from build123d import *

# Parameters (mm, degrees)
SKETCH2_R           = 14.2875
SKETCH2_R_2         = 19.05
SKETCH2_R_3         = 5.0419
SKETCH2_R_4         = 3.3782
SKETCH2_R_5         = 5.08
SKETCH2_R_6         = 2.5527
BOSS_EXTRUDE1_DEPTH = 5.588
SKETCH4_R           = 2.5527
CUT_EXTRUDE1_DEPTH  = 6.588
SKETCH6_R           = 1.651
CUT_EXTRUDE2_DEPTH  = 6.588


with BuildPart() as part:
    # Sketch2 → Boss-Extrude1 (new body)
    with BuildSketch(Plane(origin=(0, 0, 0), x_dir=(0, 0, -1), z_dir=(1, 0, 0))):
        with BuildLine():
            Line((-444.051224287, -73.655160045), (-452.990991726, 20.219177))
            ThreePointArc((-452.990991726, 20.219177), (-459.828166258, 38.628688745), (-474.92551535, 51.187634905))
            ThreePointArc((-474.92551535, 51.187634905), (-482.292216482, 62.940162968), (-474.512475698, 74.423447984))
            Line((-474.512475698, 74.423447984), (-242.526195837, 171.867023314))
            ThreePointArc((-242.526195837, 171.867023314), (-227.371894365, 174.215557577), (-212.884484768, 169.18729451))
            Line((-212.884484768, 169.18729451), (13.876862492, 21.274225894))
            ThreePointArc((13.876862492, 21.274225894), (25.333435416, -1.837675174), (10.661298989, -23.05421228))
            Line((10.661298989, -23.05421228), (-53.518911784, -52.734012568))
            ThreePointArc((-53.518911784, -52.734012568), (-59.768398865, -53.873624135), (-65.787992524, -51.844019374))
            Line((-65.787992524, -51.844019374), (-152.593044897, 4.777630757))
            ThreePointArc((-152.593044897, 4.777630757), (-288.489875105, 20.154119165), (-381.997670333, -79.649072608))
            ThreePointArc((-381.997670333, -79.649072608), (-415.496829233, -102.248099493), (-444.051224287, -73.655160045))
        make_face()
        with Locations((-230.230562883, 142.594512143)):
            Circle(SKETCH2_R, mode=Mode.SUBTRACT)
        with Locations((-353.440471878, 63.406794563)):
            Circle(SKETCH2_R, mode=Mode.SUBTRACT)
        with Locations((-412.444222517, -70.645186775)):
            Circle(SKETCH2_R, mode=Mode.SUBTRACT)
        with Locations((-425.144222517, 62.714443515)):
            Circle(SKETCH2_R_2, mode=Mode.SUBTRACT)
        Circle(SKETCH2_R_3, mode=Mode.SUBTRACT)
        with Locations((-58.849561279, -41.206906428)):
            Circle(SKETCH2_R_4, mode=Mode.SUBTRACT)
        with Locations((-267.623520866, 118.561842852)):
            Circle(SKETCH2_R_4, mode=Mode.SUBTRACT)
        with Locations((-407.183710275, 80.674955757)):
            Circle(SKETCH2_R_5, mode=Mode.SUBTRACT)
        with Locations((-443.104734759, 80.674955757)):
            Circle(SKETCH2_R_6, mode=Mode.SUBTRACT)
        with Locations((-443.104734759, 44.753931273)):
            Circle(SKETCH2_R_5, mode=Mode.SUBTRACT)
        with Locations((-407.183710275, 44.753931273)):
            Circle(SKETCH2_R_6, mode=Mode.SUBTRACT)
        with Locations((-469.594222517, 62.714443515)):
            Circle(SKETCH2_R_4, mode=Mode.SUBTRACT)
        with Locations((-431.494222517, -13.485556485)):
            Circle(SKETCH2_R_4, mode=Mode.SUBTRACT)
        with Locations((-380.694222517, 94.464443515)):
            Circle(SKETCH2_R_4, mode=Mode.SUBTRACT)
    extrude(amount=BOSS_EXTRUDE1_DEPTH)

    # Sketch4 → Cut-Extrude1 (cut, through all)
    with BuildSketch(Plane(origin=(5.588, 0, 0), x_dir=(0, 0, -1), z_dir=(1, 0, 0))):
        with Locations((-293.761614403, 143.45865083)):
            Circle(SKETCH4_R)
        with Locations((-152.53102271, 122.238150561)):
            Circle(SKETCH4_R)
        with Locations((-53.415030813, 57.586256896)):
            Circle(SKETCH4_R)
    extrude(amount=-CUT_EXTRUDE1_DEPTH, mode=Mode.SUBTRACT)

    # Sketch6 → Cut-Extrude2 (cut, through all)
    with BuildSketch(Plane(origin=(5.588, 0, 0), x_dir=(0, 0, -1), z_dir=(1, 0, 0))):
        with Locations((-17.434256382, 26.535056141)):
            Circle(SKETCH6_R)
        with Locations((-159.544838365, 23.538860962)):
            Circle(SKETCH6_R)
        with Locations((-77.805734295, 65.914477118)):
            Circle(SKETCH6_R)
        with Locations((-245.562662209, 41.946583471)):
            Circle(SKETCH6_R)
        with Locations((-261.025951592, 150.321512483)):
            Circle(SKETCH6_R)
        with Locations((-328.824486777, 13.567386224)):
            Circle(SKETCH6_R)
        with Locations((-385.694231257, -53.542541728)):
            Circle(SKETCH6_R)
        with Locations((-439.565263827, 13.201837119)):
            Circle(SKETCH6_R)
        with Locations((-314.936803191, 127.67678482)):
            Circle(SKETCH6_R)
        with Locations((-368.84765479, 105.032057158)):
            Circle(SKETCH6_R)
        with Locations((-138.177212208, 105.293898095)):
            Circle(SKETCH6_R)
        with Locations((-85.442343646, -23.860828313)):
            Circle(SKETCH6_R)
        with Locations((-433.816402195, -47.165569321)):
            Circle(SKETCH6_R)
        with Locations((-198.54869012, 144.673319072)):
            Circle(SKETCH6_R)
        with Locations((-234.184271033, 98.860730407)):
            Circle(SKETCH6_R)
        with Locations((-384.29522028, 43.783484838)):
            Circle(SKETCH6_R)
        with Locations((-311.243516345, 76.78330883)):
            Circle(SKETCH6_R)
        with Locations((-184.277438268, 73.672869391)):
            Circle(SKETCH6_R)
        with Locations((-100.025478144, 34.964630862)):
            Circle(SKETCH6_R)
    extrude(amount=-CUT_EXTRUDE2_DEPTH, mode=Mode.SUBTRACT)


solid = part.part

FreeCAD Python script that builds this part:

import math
import FreeCAD as App
import Part
import Sketcher
from FreeCAD import Vector
Q = App.Units.Quantity

doc = App.newDocument("Part")
body = doc.addObject("PartDesign::Body", "Body")

# Sketch on YZ plane
sketch1 = body.newObject("Sketcher::SketchObject", "Sketch")
sketch1.AttachmentSupport = (doc.getObject("YZ_Plane"), [""])
sketch1.MapMode = "FlatFace"
sketch1.addGeometry(Part.LineSegment(Vector(20.219177, 452.990992, 0), Vector(-73.65516, 444.051224, 0)), False)
sketch1.addGeometry(Part.ArcOfCircle(Part.Circle(Vector(-70.645187, 412.444223, 0), Vector(0, 0, 1), 31.75), math.radians(95.439942), math.radians(253.525597)), False)
sketch1.addGeometry(Part.ArcOfCircle(Part.Circle(Vector(-122.867725, 235.85422, 0), Vector(0, 0, 1), 152.4), math.radians(-33.115815), math.radians(73.525597)), False)
sketch1.addGeometry(Part.LineSegment(Vector(4.777631, 152.593045, 0), Vector(-51.844019, 65.787993, 0)), False)
sketch1.addGeometry(Part.ArcOfCircle(Part.Circle(Vector(-41.206906, 58.849561, 0), Vector(0, 0, 1), 12.7), math.radians(146.884185), math.radians(204.817933)), False)
sketch1.addGeometry(Part.LineSegment(Vector(-52.734013, 53.518912, 0), Vector(-23.054212, -10.661299, 0)), False)
sketch1.addGeometry(Part.ArcOfCircle(Part.Circle(Vector(0, 0, 0), Vector(0, 0, 1), 25.4), math.radians(-155.182067), math.radians(-33.115815)), False)
sketch1.addGeometry(Part.LineSegment(Vector(21.274226, -13.876862, 0), Vector(169.187295, 212.884485, 0)), False)
sketch1.addGeometry(Part.ArcOfCircle(Part.Circle(Vector(142.594512, 230.230563, 0), Vector(0, 0, 1), 31.75), math.radians(-33.115815), math.radians(22.784366)), False)
sketch1.addGeometry(Part.LineSegment(Vector(171.867023, 242.526196, 0), Vector(74.423448, 474.512476, 0)), False)
sketch1.addGeometry(Part.ArcOfCircle(Part.Circle(Vector(62.714444, 469.594223, 0), Vector(0, 0, 1), 12.7), math.radians(22.784366), math.radians(155.17887)), False)
sketch1.addGeometry(Part.ArcOfCircle(Part.Circle(Vector(16.607209, 490.919394, 0), Vector(0, 0, 1), 38.1), math.radians(-84.560058), math.radians(-24.82113)), False)
sketch1.addGeometry(Part.Circle(Vector(-41.206906, 58.849561, 0), Vector(0, 0, 1), 3.3782), False)
sketch1.addGeometry(Part.Circle(Vector(0, 0, 0), Vector(0, 0, 1), 5.0419), False)
sketch1.addGeometry(Part.Circle(Vector(-70.645187, 412.444223, 0), Vector(0, 0, 1), 14.2875), False)
sketch1.addGeometry(Part.Circle(Vector(-13.485556, 431.494223, 0), Vector(0, 0, 1), 3.3782), False)
sketch1.addGeometry(Part.Circle(Vector(142.594512, 230.230563, 0), Vector(0, 0, 1), 14.2875), False)
sketch1.addGeometry(Part.Circle(Vector(63.406795, 353.440472, 0), Vector(0, 0, 1), 14.2875), False)
sketch1.addGeometry(Part.Circle(Vector(44.753931, 407.18371, 0), Vector(0, 0, 1), 2.5527), False)
sketch1.addGeometry(Part.Circle(Vector(44.753931, 443.104735, 0), Vector(0, 0, 1), 5.08), False)
sketch1.addGeometry(Part.Circle(Vector(62.714444, 425.144223, 0), Vector(0, 0, 1), 19.05), False)
sketch1.addGeometry(Part.Circle(Vector(62.714444, 469.594223, 0), Vector(0, 0, 1), 3.3782), False)
sketch1.addGeometry(Part.Circle(Vector(80.674956, 407.18371, 0), Vector(0, 0, 1), 5.08), False)
sketch1.addGeometry(Part.Circle(Vector(94.464444, 380.694223, 0), Vector(0, 0, 1), 3.3782), False)
sketch1.addGeometry(Part.Circle(Vector(80.674956, 443.104735, 0), Vector(0, 0, 1), 2.5527), False)
sketch1.addGeometry(Part.Circle(Vector(118.561843, 267.623521, 0), Vector(0, 0, 1), 3.3782), False)
sketch1.addConstraint(Sketcher.Constraint("Tangent", 0, 2, 1, 1))
sketch1.addConstraint(Sketcher.Constraint("Tangent", 1, 2, 2, 2))
sketch1.addConstraint(Sketcher.Constraint("Tangent", 2, 1, 3, 1))
sketch1.addConstraint(Sketcher.Constraint("Tangent", 3, 2, 4, 1))
sketch1.addConstraint(Sketcher.Constraint("Tangent", 4, 2, 5, 1))
sketch1.addConstraint(Sketcher.Constraint("Tangent", 5, 2, 6, 1))
sketch1.addConstraint(Sketcher.Constraint("Tangent", 6, 2, 7, 1))
sketch1.addConstraint(Sketcher.Constraint("Tangent", 7, 2, 8, 1))
sketch1.addConstraint(Sketcher.Constraint("Tangent", 8, 2, 9, 1))
sketch1.addConstraint(Sketcher.Constraint("Tangent", 9, 2, 10, 1))
sketch1.addConstraint(Sketcher.Constraint("Tangent", 10, 2, 11, 2))
sketch1.addConstraint(Sketcher.Constraint("Tangent", 11, 1, 0, 1))
sketch1.addConstraint(Sketcher.Constraint("Coincident", 6, 3, -1, 1))
sketch1.addConstraint(Sketcher.Constraint("Coincident", 13, 3, -1, 1))
sketch1.addConstraint(Sketcher.Constraint("Coincident", 12, 3, 4, 3))
sketch1.addConstraint(Sketcher.Constraint("Coincident", 14, 3, 1, 3))
sketch1.addConstraint(Sketcher.Constraint("Coincident", 16, 3, 8, 3))
sketch1.addConstraint(Sketcher.Constraint("Coincident", 21, 3, 10, 3))
sketch1.addConstraint(Sketcher.Constraint("Equal", 1, 8))
sketch1.addConstraint(Sketcher.Constraint("Equal", 4, 10))
sketch1.addConstraint(Sketcher.Constraint("Equal", 12, 15))
sketch1.addConstraint(Sketcher.Constraint("Equal", 14, 16))
sketch1.addConstraint(Sketcher.Constraint("Equal", 16, 17))
sketch1.addConstraint(Sketcher.Constraint("Equal", 15, 21))
sketch1.addConstraint(Sketcher.Constraint("Equal", 19, 22))
sketch1.addConstraint(Sketcher.Constraint("Equal", 21, 23))
sketch1.addConstraint(Sketcher.Constraint("Equal", 18, 24))
sketch1.addConstraint(Sketcher.Constraint("Equal", 23, 25))
sketch1.addConstraint(Sketcher.Constraint("Parallel", 3, 7))
sketch1.addConstraint(Sketcher.Constraint("Horizontal", 18, 3, 22, 3))
sketch1.addConstraint(Sketcher.Constraint("Horizontal", 19, 3, 24, 3))
sketch1.addConstraint(Sketcher.Constraint("Vertical", 18, 3, 19, 3))
sketch1.addConstraint(Sketcher.Constraint("Vertical", 10, 3, 20, 3))
sketch1.addConstraint(Sketcher.Constraint("Vertical", 22, 3, 24, 3))
sketch1.addConstraint(Sketcher.Constraint("Radius", 2, Q("6 in")))
sketch1.addConstraint(Sketcher.Constraint("Radius", 6, Q("1 in")))
sketch1.addConstraint(Sketcher.Constraint("Diameter", 19, Q("0.4 in")))
sketch1.addConstraint(Sketcher.Constraint("Diameter", 20, Q("1.5 in")))
sketch1.addConstraint(Sketcher.Constraint("Radius", 4, Q("0.5 in")))
sketch1.addConstraint(Sketcher.Constraint("Radius", 11, Q("1.5 in")))
sketch1.addConstraint(Sketcher.Constraint("Radius", 1, Q("1.25 in")))
sketch1.addConstraint(Sketcher.Constraint("Diameter", 12, Q("0.266 in")))
sketch1.addConstraint(Sketcher.Constraint("Diameter", 13, Q("0.397 in")))
sketch1.addConstraint(Sketcher.Constraint("Diameter", 14, Q("1.125 in")))
sketch1.addConstraint(Sketcher.Constraint("Diameter", 18, Q("0.201 in")))
sketch1.addConstraint(Sketcher.Constraint("DistanceX", 15, 3, 10, 3, Q("3 in")))
sketch1.addConstraint(Sketcher.Constraint("DistanceY", 15, 3, 10, 3, Q("1.5 in")))
sketch1.addConstraint(Sketcher.Constraint("DistanceY", 1, 3, 10, 3, Q("2.25 in")))
sketch1.addConstraint(Sketcher.Constraint("DistanceY", 20, 3, 10, 3, Q("1.75 in")))
sketch1.addConstraint(Sketcher.Constraint("DistanceX", 20, 3, 23, 3, Q("1.25 in")))
sketch1.addConstraint(Sketcher.Constraint("DistanceY", 23, 3, 20, 3, Q("1.75 in")))
sketch1.addConstraint(Sketcher.Constraint("DistanceY", -1, 1, 2, 1, Q("6.0076002 in")))
sketch1.addConstraint(Sketcher.Constraint("DistanceY", 5, 2, -1, 1, 10.661299))
sketch1.addConstraint(Sketcher.Constraint("DistanceY", 4, 3, 8, 3, 171.381002))
sketch1.addConstraint(Sketcher.Constraint("DistanceX", 1, 3, 8, 3, 213.239699))
sketch1.addConstraint(Sketcher.Constraint("DistanceX", 23, 3, 25, 3, 24.097399))
sketch1.addConstraint(Sketcher.Constraint("DistanceY", 25, 3, 23, 3, 113.070702))
sketch1.addConstraint(Sketcher.Constraint("DistanceY", 1, 3, 0, 2, 31.607002))
sketch1.addConstraint(Sketcher.Constraint("DistanceX", 4, 2, 5, 2, 29.6798))
sketch1.addConstraint(Sketcher.Constraint("DistanceX", 17, 3, 7, 2, 105.7805))
sketch1.addConstraint(Sketcher.Constraint("Distance", 0, 94.299049))
sketch1.addConstraint(Sketcher.Constraint("Distance", 7, 270.737852))
sketch1.addConstraint(Sketcher.Constraint("DistanceY", -1, 1, 17, 3, 353.440472))
sketch1.addConstraint(Sketcher.Constraint("DistanceX", -1, 1, 18, 3, 44.753931))
sketch1.addConstraint(Sketcher.Constraint("DistanceY", -1, 1, 18, 3, 407.18371))
sketch1.addConstraint(Sketcher.Constraint("DistanceY", 19, 3, 11, 3, 47.814659))
sketch1.addConstraint(Sketcher.Constraint("DistanceX", 17, 3, 22, 3, 17.268161))
pad1 = body.newObject("PartDesign::Pad", "Pad")
pad1.Profile = sketch1
pad1.Length = Q("0.22 in")

# Sketch on YZ plane
sketch2 = body.newObject("Sketcher::SketchObject", "Sketch001")
sketch2.AttachmentSupport = (doc.getObject("YZ_Plane"), [""])
sketch2.MapMode = "FlatFace"
sketch2.AttachmentOffset = App.Placement(Vector(0, 0, 0.22 * 25.4), App.Rotation())
sketch2.addGeometry(Part.Circle(Vector(143.458651, 293.761614, 0), Vector(0, 0, 1), 2.5527), False)
sketch2.addGeometry(Part.Circle(Vector(122.238151, 152.531023, 0), Vector(0, 0, 1), 2.5527), False)
sketch2.addGeometry(Part.Circle(Vector(57.586257, 53.415031, 0), Vector(0, 0, 1), 2.5527), False)
sketch2.addConstraint(Sketcher.Constraint("Equal", 0, 1))
sketch2.addConstraint(Sketcher.Constraint("Equal", 1, 2))
sketch2.addConstraint(Sketcher.Constraint("Diameter", 0, Q("0.201 in")))
sketch2.addConstraint(Sketcher.Constraint("DistanceX", 1, 3, 0, 3, 21.2205))
sketch2.addConstraint(Sketcher.Constraint("DistanceX", -1, 1, 0, 3, 143.458651))
sketch2.addConstraint(Sketcher.Constraint("DistanceY", -1, 1, 2, 3, 53.415031))
sketch2.addConstraint(Sketcher.Constraint("DistanceY", 1, 3, 0, 3, 141.230592))
sketch2.addConstraint(Sketcher.Constraint("DistanceY", 2, 3, 1, 3, 99.115992))
sketch2.addConstraint(Sketcher.Constraint("DistanceX", -1, 1, 2, 3, 57.586257))
pocket1 = body.newObject("PartDesign::Pocket", "Pocket")
pocket1.Profile = sketch2
pocket1.Type = "ThroughAll"

# Sketch on YZ plane
sketch3 = body.newObject("Sketcher::SketchObject", "Sketch002")
sketch3.AttachmentSupport = (doc.getObject("YZ_Plane"), [""])
sketch3.MapMode = "FlatFace"
sketch3.AttachmentOffset = App.Placement(Vector(0, 0, 0.22 * 25.4), App.Rotation())
sketch3.addGeometry(Part.Circle(Vector(26.535056, 17.434256, 0), Vector(0, 0, 1), 1.651), False)
sketch3.addGeometry(Part.Circle(Vector(23.538861, 159.544838, 0), Vector(0, 0, 1), 1.651), False)
sketch3.addGeometry(Part.Circle(Vector(65.914477, 77.805734, 0), Vector(0, 0, 1), 1.651), False)
sketch3.addGeometry(Part.Circle(Vector(41.946583, 245.562662, 0), Vector(0, 0, 1), 1.651), False)
sketch3.addGeometry(Part.Circle(Vector(150.321512, 261.025952, 0), Vector(0, 0, 1), 1.651), False)
sketch3.addGeometry(Part.Circle(Vector(13.567386, 328.824487, 0), Vector(0, 0, 1), 1.651), False)
sketch3.addGeometry(Part.Circle(Vector(-53.542542, 385.694231, 0), Vector(0, 0, 1), 1.651), False)
sketch3.addGeometry(Part.Circle(Vector(13.201837, 439.565264, 0), Vector(0, 0, 1), 1.651), False)
sketch3.addGeometry(Part.Circle(Vector(127.676785, 314.936803, 0), Vector(0, 0, 1), 1.651), False)
sketch3.addGeometry(Part.Circle(Vector(105.032057, 368.847655, 0), Vector(0, 0, 1), 1.651), False)
sketch3.addGeometry(Part.Circle(Vector(105.293898, 138.177212, 0), Vector(0, 0, 1), 1.651), False)
sketch3.addGeometry(Part.Circle(Vector(-23.860828, 85.442344, 0), Vector(0, 0, 1), 1.651), False)
sketch3.addGeometry(Part.Circle(Vector(-47.165569, 433.816402, 0), Vector(0, 0, 1), 1.651), False)
sketch3.addGeometry(Part.Circle(Vector(144.673319, 198.54869, 0), Vector(0, 0, 1), 1.651), False)
sketch3.addGeometry(Part.Circle(Vector(98.86073, 234.184271, 0), Vector(0, 0, 1), 1.651), False)
sketch3.addGeometry(Part.Circle(Vector(43.783485, 384.29522, 0), Vector(0, 0, 1), 1.651), False)
sketch3.addGeometry(Part.Circle(Vector(76.783309, 311.243516, 0), Vector(0, 0, 1), 1.651), False)
sketch3.addGeometry(Part.Circle(Vector(73.672869, 184.277438, 0), Vector(0, 0, 1), 1.651), False)
sketch3.addGeometry(Part.Circle(Vector(34.964631, 100.025478, 0), Vector(0, 0, 1), 1.651), False)
sketch3.addConstraint(Sketcher.Constraint("Equal", 0, 1))
sketch3.addConstraint(Sketcher.Constraint("Equal", 1, 2))
sketch3.addConstraint(Sketcher.Constraint("Equal", 2, 3))
sketch3.addConstraint(Sketcher.Constraint("Equal", 3, 4))
sketch3.addConstraint(Sketcher.Constraint("Equal", 4, 5))
sketch3.addConstraint(Sketcher.Constraint("Equal", 5, 6))
sketch3.addConstraint(Sketcher.Constraint("Equal", 6, 7))
sketch3.addConstraint(Sketcher.Constraint("Equal", 7, 8))
sketch3.addConstraint(Sketcher.Constraint("Equal", 8, 9))
sketch3.addConstraint(Sketcher.Constraint("Equal", 9, 10))
sketch3.addConstraint(Sketcher.Constraint("Equal", 10, 11))
sketch3.addConstraint(Sketcher.Constraint("Equal", 11, 12))
sketch3.addConstraint(Sketcher.Constraint("Equal", 12, 13))
sketch3.addConstraint(Sketcher.Constraint("Equal", 13, 14))
sketch3.addConstraint(Sketcher.Constraint("Equal", 14, 15))
sketch3.addConstraint(Sketcher.Constraint("Equal", 15, 16))
sketch3.addConstraint(Sketcher.Constraint("Equal", 16, 17))
sketch3.addConstraint(Sketcher.Constraint("Equal", 17, 18))
sketch3.addConstraint(Sketcher.Constraint("Diameter", 0, Q("0.13 in")))
sketch3.addConstraint(Sketcher.Constraint("DistanceX", -1, 1, 13, 3, Q("5.6958 in")))
sketch3.addConstraint(Sketcher.Constraint("DistanceY", 4, 3, 6, 3, Q("4.9082 in")))
sketch3.addConstraint(Sketcher.Constraint("DistanceX", -1, 1, 10, 3, 105.293898))
sketch3.addConstraint(Sketcher.Constraint("DistanceY", 3, 3, 7, 3, 194.002602))
sketch3.addConstraint(Sketcher.Constraint("DistanceX", 3, 3, 8, 3, 85.730201))
sketch3.addConstraint(Sketcher.Constraint("DistanceX", 5, 3, 8, 3, 114.109399))
sketch3.addConstraint(Sketcher.Constraint("DistanceX", 5, 3, 15, 3, 30.216099))
sketch3.addConstraint(Sketcher.Constraint("DistanceY", 1, 3, 17, 3, 24.7326))
sketch3.addConstraint(Sketcher.Constraint("DistanceX", -1, 1, 1, 3, 23.538861))
sketch3.addConstraint(Sketcher.Constraint("DistanceY", -1, 1, 1, 3, 159.544838))
sketch3.addConstraint(Sketcher.Constraint("DistanceY", -1, 1, 4, 3, 261.025952))
sketch3.addConstraint(Sketcher.Constraint("DistanceX", 6, 3, -1, 1, 53.542542))
sketch3.addConstraint(Sketcher.Constraint("DistanceX", 11, 3, -1, 1, 23.860828))
sketch3.addConstraint(Sketcher.Constraint("DistanceX", 12, 3, -1, 1, 47.165569))
sketch3.addConstraint(Sketcher.Constraint("DistanceY", -1, 1, 13, 3, 198.54869))
sketch3.addConstraint(Sketcher.Constraint("DistanceX", -1, 1, 14, 3, 98.86073))
sketch3.addConstraint(Sketcher.Constraint("DistanceY", -1, 1, 14, 3, 234.184271))
sketch3.addConstraint(Sketcher.Constraint("DistanceY", -1, 1, 15, 3, 384.29522))
sketch3.addConstraint(Sketcher.Constraint("DistanceX", -1, 1, 16, 3, 76.783309))
sketch3.addConstraint(Sketcher.Constraint("DistanceX", -1, 1, 17, 3, 73.672869))
sketch3.addConstraint(Sketcher.Constraint("DistanceX", -1, 1, 18, 3, 34.964631))
sketch3.addConstraint(Sketcher.Constraint("DistanceY", -1, 1, 18, 3, 100.025478))
sketch3.addConstraint(Sketcher.Constraint("DistanceY", 0, 3, 1, 3, 142.110582))
sketch3.addConstraint(Sketcher.Constraint("DistanceX", 0, 3, 2, 3, 39.379421))
sketch3.addConstraint(Sketcher.Constraint("DistanceX", 3, 3, 4, 3, 108.374929))
sketch3.addConstraint(Sketcher.Constraint("DistanceY", 3, 3, 4, 3, 15.463289))
sketch3.addConstraint(Sketcher.Constraint("DistanceX", 1, 3, 4, 3, 126.782652))
sketch3.addConstraint(Sketcher.Constraint("DistanceY", 1, 3, 5, 3, 169.279648))
sketch3.addConstraint(Sketcher.Constraint("DistanceX", 5, 3, 2, 3, 52.347091))
sketch3.addConstraint(Sketcher.Constraint("DistanceX", 6, 3, 7, 3, 66.744379))
sketch3.addConstraint(Sketcher.Constraint("DistanceY", 4, 3, 8, 3, 53.910852))
sketch3.addConstraint(Sketcher.Constraint("DistanceY", 8, 3, 9, 3, 53.910852))
sketch3.addConstraint(Sketcher.Constraint("DistanceX", 5, 3, 9, 3, 91.464671))
sketch3.addConstraint(Sketcher.Constraint("DistanceY", 10, 3, 3, 3, 107.38545))
sketch3.addConstraint(Sketcher.Constraint("DistanceY", 2, 3, 11, 3, 7.636609))
sketch3.addConstraint(Sketcher.Constraint("DistanceY", 11, 3, 10, 3, 52.734869))
sketch3.addConstraint(Sketcher.Constraint("DistanceY", 6, 3, 12, 3, 48.122171))
sketch3.addConstraint(Sketcher.Constraint("DistanceY", 16, 3, 9, 3, 57.604138))
pocket2 = body.newObject("PartDesign::Pocket", "Pocket001")
pocket2.Profile = sketch3
pocket2.Type = "ThroughAll"

doc.recompute()
